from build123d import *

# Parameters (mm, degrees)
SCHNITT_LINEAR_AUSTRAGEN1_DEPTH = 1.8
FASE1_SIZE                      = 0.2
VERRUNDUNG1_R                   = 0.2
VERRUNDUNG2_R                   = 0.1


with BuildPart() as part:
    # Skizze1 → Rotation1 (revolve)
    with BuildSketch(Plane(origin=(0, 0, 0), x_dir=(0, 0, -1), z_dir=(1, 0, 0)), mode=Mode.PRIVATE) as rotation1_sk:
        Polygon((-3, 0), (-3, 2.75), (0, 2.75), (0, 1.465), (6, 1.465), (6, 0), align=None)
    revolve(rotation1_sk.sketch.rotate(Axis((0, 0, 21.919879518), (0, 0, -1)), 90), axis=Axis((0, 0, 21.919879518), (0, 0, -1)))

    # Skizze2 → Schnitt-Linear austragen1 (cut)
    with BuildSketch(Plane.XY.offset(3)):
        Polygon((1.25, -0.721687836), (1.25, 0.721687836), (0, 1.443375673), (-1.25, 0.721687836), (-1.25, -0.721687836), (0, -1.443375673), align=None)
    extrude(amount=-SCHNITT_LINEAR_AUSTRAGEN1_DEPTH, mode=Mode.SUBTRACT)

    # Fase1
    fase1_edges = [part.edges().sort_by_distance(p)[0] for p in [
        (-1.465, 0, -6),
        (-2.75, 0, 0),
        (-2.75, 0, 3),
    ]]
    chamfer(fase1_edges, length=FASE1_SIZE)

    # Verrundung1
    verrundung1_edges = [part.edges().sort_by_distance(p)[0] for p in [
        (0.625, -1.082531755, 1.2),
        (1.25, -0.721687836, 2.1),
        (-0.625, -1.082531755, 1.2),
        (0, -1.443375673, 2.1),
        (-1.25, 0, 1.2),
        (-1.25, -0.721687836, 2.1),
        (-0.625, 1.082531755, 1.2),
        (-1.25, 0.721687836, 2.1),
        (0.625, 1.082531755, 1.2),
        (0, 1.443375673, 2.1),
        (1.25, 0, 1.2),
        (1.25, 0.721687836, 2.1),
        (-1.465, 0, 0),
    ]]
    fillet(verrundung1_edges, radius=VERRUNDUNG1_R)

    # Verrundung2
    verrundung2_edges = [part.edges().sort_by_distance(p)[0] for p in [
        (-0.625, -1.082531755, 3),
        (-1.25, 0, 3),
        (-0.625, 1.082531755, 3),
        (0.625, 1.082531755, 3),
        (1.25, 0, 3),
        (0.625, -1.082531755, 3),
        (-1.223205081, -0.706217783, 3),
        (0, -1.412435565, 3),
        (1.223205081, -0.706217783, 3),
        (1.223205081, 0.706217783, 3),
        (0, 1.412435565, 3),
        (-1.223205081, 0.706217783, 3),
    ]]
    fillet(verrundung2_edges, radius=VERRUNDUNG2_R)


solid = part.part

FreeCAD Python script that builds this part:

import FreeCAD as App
import Part
import Sketcher
from FreeCAD import Vector
Q = App.Units.Quantity


def edges_at(feature, points):
    """Names of the edges that pass closest to the given points."""
    edges = feature.Shape.Edges
    near = lambda p: min(range(len(edges)), key=lambda i: edges[i].distToShape(Part.Vertex(*p))[0])
    return sorted({f"Edge{near(p) + 1}" for p in points})


def add_polygon(sketch, points):
    """Adds a closed chain of lines whose ends are joined by coincident constraints."""
    first, n = sketch.GeometryCount, len(points)
    for a, b in zip(points, points[1:] + points[:1]):
        sketch.addGeometry(Part.LineSegment(App.Vector(*a, 0), App.Vector(*b, 0)), False)
    for i in range(n):
        sketch.addConstraint(Sketcher.Constraint("Coincident", first + i, 2, first + (i + 1) % n, 1))

doc = App.newDocument("Part")
body = doc.addObject("PartDesign::Body", "Body")

# Sketch on YZ plane
sketch1 = body.newObject("Sketcher::SketchObject", "Sketch")
sketch1.AttachmentSupport = (doc.getObject("YZ_Plane"), [""])
sketch1.MapMode = "FlatFace"
add_polygon(sketch1, [(2.8, 3), (0, 3), (0, -6), (1.5, -6), (1.5, 0), (2.8, 0)])  # lines 0-5
sketch1.addConstraint([
    Sketcher.Constraint("Horizontal", 0),
    Sketcher.Constraint("Vertical", 1),
    Sketcher.Constraint("Horizontal", 2),
    Sketcher.Constraint("Vertical", 3),
    Sketcher.Constraint("Horizontal", 4),
    Sketcher.Constraint("Vertical", 5),
    Sketcher.Constraint("PointOnObject", 0, 2, -2),
    Sketcher.Constraint("PointOnObject", 3, 2, -1),
    Sketcher.Constraint("DistanceY", 1, 2, 1, 1, Q("9 mm")),
    Sketcher.Constraint("DistanceY", 3, 1, 3, 2, Q("6 mm")),
    Sketcher.Constraint("DistanceX", 0, 2, 0, 1, Q("2.75 mm")),
    Sketcher.Constraint("DistanceX", 2, 1, 2, 2, Q("1.465 mm")),
])
revolution = body.newObject("PartDesign::Revolution", "Revolution")
revolution.Profile = sketch1
revolution.ReferenceAxis = (sketch1, ["V_Axis"])
revolution.Angle = 360

# Sketch on XY plane
sketch2 = body.newObject("Sketcher::SketchObject", "Sketch001")
sketch2.AttachmentSupport = (doc.getObject("XY_Plane"), [""])
sketch2.MapMode = "FlatFace"
sketch2.AttachmentOffset = App.Placement(Vector(0, 0, 3), App.Rotation())
add_polygon(sketch2, [(1.2, -0.7), (1.2, 0.7), (0, 1.4), (-1.2, 0.7), (-1.2, -0.7), (0, -1.4)])  # lines 0-5
sketch2.addConstraint([
    Sketcher.Constraint("Vertical", 0),
    Sketcher.Constraint("Vertical", 3),
    Sketcher.Constraint("Symmetric", 0, 2, 3, 2, -1, 1),
    Sketcher.Constraint("Symmetric", 1, 2, 4, 2, -1, 1),
    Sketcher.Constraint("PointOnObject", 1, 2, -2),
    Sketcher.Constraint("Parallel", 2, 5),
    Sketcher.Constraint("Horizontal", 0, 2, 2, 2),
    Sketcher.Constraint("Angle", 1, Q("150 deg")),
    Sketcher.Constraint("DistanceX", 2, 2, 0, 2, Q("2.5 mm")),
    Sketcher.Constraint("DistanceY", 0, 1, 0, 2, Q("1.443376 mm")),
])
pocket1 = body.newObject("PartDesign::Pocket", "Pocket")
pocket1.Profile = sketch2
pocket1.Length = 1.8
doc.recompute()

chamfer = body.newObject("PartDesign::Chamfer", "Chamfer")
chamfer.Base = (pocket1, edges_at(pocket1, [(-1.465, 0, -6), (-2.75, 0, 0), (-2.75, 0, 3)]))
chamfer.Size = 0.2
doc.recompute()

fillet = body.newObject("PartDesign::Fillet", "Fillet")
fillet.Base = (chamfer, edges_at(chamfer, [
    (0.625, -1.083, 1.2),
    (1.25, -0.722, 2.1),
    (-0.625, -1.083, 1.2),
    (0, -1.443, 2.1),
    (-1.25, 0, 1.2),
    (-1.25, -0.722, 2.1),
    (-0.625, 1.083, 1.2),
    (-1.25, 0.722, 2.1),
    (0.625, 1.083, 1.2),
    (0, 1.443, 2.1),
    (1.25, 0, 1.2),
    (1.25, 0.722, 2.1),
    (-1.465, 0, 0),
]))
fillet.Radius = 0.2
doc.recompute()

fillet2 = body.newObject("PartDesign::Fillet", "Fillet001")
fillet2.Base = (fillet, edges_at(fillet, [
    (-0.625, -1.083, 3),
    (-1.25, 0, 3),
    (-0.625, 1.083, 3),
    (0.625, 1.083, 3),
    (1.25, 0, 3),
    (0.625, -1.083, 3),
    (-1.223, -0.706, 3),
    (0, -1.412, 3),
    (1.223, -0.706, 3),
    (1.223, 0.706, 3),
    (0, 1.412, 3),
    (-1.223, 0.706, 3),
]))
fillet2.Radius = 0.1

doc.recompute()
